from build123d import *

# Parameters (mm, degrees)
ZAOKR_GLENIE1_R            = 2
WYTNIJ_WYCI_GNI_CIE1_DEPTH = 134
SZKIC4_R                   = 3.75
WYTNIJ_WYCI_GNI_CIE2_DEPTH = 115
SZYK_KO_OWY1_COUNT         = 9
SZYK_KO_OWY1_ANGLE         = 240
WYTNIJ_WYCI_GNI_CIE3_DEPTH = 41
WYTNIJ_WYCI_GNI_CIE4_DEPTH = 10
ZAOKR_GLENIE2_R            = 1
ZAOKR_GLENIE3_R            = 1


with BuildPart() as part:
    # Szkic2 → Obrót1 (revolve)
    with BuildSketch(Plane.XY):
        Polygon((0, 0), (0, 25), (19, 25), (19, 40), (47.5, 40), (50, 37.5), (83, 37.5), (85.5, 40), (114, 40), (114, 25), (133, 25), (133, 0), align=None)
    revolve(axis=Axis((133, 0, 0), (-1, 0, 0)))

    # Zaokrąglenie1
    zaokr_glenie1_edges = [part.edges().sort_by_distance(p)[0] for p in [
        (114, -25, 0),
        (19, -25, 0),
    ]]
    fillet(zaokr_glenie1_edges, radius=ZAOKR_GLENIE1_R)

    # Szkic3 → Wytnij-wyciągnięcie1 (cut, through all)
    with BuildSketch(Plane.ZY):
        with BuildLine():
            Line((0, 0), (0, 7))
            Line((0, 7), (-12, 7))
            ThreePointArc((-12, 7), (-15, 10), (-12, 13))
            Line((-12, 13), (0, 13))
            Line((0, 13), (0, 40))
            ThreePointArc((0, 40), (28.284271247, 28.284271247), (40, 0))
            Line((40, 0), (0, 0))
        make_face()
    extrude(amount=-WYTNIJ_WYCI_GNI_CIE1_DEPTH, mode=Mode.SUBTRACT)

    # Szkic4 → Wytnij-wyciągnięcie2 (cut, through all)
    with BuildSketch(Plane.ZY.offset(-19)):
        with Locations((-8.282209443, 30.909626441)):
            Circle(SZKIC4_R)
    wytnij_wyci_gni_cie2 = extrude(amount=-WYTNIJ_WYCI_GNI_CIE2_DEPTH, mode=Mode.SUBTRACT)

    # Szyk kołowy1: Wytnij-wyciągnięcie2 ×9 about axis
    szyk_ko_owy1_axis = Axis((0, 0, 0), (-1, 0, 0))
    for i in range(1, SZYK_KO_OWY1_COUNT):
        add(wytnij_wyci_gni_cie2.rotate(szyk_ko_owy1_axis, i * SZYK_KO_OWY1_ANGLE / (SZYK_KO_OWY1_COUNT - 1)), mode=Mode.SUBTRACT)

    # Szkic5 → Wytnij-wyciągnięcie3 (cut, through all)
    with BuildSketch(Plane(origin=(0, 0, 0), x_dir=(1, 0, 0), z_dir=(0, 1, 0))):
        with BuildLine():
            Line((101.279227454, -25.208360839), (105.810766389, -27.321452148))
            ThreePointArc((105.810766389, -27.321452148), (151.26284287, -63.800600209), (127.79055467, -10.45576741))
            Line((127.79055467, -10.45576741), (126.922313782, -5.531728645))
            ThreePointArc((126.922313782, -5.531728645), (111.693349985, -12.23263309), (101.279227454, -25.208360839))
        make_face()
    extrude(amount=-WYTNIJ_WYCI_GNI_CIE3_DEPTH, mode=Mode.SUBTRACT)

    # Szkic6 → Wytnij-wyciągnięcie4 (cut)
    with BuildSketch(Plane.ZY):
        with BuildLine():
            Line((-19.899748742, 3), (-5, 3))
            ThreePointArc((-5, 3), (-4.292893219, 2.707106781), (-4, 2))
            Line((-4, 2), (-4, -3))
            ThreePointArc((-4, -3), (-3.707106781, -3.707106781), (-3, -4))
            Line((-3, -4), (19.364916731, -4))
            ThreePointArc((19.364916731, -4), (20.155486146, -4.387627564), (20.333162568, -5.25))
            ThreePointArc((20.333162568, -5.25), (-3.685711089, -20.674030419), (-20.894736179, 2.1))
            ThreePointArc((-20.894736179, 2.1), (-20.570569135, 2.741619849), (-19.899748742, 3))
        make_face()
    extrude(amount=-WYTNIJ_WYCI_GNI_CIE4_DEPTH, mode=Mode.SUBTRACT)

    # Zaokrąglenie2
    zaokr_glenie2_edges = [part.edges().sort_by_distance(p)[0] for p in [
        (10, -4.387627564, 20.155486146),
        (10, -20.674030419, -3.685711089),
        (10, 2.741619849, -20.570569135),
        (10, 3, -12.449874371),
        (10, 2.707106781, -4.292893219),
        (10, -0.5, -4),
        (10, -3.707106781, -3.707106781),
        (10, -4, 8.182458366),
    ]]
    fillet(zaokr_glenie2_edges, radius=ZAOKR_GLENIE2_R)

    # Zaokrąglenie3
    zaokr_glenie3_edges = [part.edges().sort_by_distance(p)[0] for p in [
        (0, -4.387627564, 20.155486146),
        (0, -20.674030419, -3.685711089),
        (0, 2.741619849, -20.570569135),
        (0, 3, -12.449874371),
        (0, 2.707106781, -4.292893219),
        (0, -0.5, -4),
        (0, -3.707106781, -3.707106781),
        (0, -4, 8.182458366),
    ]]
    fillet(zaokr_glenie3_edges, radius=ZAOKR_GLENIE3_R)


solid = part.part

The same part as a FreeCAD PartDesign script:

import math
import FreeCAD as App
import Part
import Sketcher
from FreeCAD import Vector
Q = App.Units.Quantity


def edges_at(feature, points):
    """Names of the edges that pass closest to the given points."""
    edges = feature.Shape.Edges
    near = lambda p: min(range(len(edges)), key=lambda i: edges[i].distToShape(Part.Vertex(*p))[0])
    return sorted({f"Edge{near(p) + 1}" for p in points})


def add_polygon(sketch, points):
    """Adds a closed chain of lines whose ends are joined by coincident constraints."""
    first, n = sketch.GeometryCount, len(points)
    for a, b in zip(points, points[1:] + points[:1]):
        sketch.addGeometry(Part.LineSegment(App.Vector(*a, 0), App.Vector(*b, 0)), False)
    for i in range(n):
        sketch.addConstraint(Sketcher.Constraint("Coincident", first + i, 2, first + (i + 1) % n, 1))

doc = App.newDocument("Part")
body = doc.addObject("PartDesign::Body", "Body")

# Sketch on XY plane
sketch1 = body.newObject("Sketcher::SketchObject", "Sketch")
sketch1.AttachmentSupport = (doc.getObject("XY_Plane"), [""])
sketch1.MapMode = "FlatFace"
add_polygon(sketch1, [(0, 25), (0, 0), (133, 0), (133, 25), (114, 25), (114, 40), (85.5, 40), (83, 37.5), (50, 37.5), (47.5, 40), (19, 40), (19, 25)])  # lines 0-11
sketch1.addConstraint(Sketcher.Constraint("Vertical", 0))
sketch1.addConstraint(Sketcher.Constraint("Horizontal", 1))
sketch1.addConstraint(Sketcher.Constraint("Vertical", 2))
sketch1.addConstraint(Sketcher.Constraint("Horizontal", 3))
sketch1.addConstraint(Sketcher.Constraint("Vertical", 4))
sketch1.addConstraint(Sketcher.Constraint("Horizontal", 5))
sketch1.addConstraint(Sketcher.Constraint("Horizontal", 7))
sketch1.addConstraint(Sketcher.Constraint("Horizontal", 9))
sketch1.addConstraint(Sketcher.Constraint("Vertical", 10))
sketch1.addConstraint(Sketcher.Constraint("Horizontal", 11))
sketch1.addConstraint(Sketcher.Constraint("Coincident", 0, 2, -1, 1))
sketch1.addConstraint(Sketcher.Constraint("Perpendicular", 6, 8))
sketch1.addConstraint(Sketcher.Constraint("Horizontal", 5, 2, 8, 2))
sketch1.addConstraint(Sketcher.Constraint("Horizontal", 3, 2, 10, 2))
sketch1.addConstraint(Sketcher.Constraint("Equal", 5, 9))
sketch1.addConstraint(Sketcher.Constraint("Equal", 3, 11))
sketch1.addConstraint(Sketcher.Constraint("Equal", 6, 8))
sketch1.addConstraint(Sketcher.Constraint("DistanceX", 1, 1, 1, 2, 133.0))
sketch1.addConstraint(Sketcher.Constraint("DistanceX", 3, 2, 3, 1, 19.0))
sketch1.addConstraint(Sketcher.Constraint("DistanceX", 7, 2, 7, 1, 33.0))
sketch1.addConstraint(Sketcher.Constraint("DistanceY", 0, 2, 0, 1, 25.0))
sketch1.addConstraint(Sketcher.Constraint("DistanceY", 4, 1, 4, 2, 15.0))
sketch1.addConstraint(Sketcher.Constraint("DistanceX", 5, 2, 5, 1, 28.5))
revolution = body.newObject("PartDesign::Revolution", "Revolution")
revolution.Profile = sketch1
revolution.ReferenceAxis = (sketch1, ["H_Axis"])
revolution.Angle = 360
doc.recompute()

fillet = body.newObject("PartDesign::Fillet", "Fillet")
fillet.Base = (revolution, edges_at(revolution, [(114, -25, 0), (19, -25, 0)]))
fillet.Radius = 2

# Sketch on YZ plane
sketch2 = body.newObject("Sketcher::SketchObject", "Sketch001")
sketch2.AttachmentSupport = (doc.getObject("YZ_Plane"), [""])
sketch2.MapMode = "FlatFace"
sketch2.addGeometry(Part.LineSegment(Vector(7, 0, 0), Vector(0, 0, 0)), False)
sketch2.addGeometry(Part.LineSegment(Vector(0, 0, 0), Vector(0, 40, 0)), False)
sketch2.addGeometry(Part.ArcOfCircle(Part.Circle(Vector(0, 0, 0), Vector(0, 0, 1), 40), math.radians(0), math.radians(90)), False)
sketch2.addGeometry(Part.LineSegment(Vector(40, 0, 0), Vector(13, 0, 0)), False)
sketch2.addGeometry(Part.LineSegment(Vector(13, 0, 0), Vector(13, -12, 0)), False)
sketch2.addGeometry(Part.ArcOfCircle(Part.Circle(Vector(10, -12, 0), Vector(0, 0, 1), 3), math.radians(180), math.radians(360)), False)
sketch2.addGeometry(Part.LineSegment(Vector(7, -12, 0), Vector(7, 0, 0)), False)
sketch2.addConstraint(Sketcher.Constraint("Coincident", 0, 2, 1, 1))
sketch2.addConstraint(Sketcher.Constraint("Coincident", 1, 2, 2, 2))
sketch2.addConstraint(Sketcher.Constraint("Coincident", 2, 1, 3, 1))
sketch2.addConstraint(Sketcher.Constraint("Coincident", 3, 2, 4, 1))
sketch2.addConstraint(Sketcher.Constraint("Tangent", 4, 2, 5, 2))
sketch2.addConstraint(Sketcher.Constraint("Tangent", 5, 1, 6, 1))
sketch2.addConstraint(Sketcher.Constraint("Coincident", 6, 2, 0, 1))
sketch2.addConstraint(Sketcher.Constraint("Horizontal", 0))
sketch2.addConstraint(Sketcher.Constraint("Vertical", 1))
sketch2.addConstraint(Sketcher.Constraint("Horizontal", 3))
sketch2.addConstraint(Sketcher.Constraint("Vertical", 4))
sketch2.addConstraint(Sketcher.Constraint("Vertical", 6))
sketch2.addConstraint(Sketcher.Constraint("Coincident", 2, 3, -1, 1))
sketch2.addConstraint(Sketcher.Constraint("Coincident", 0, 2, -1, 1))
sketch2.addConstraint(Sketcher.Constraint("PointOnObject", 2, 1, -1))
sketch2.addConstraint(Sketcher.Constraint("Radius", 2, 40.0))
sketch2.addConstraint(Sketcher.Constraint("Radius", 5, 3.0))
sketch2.addConstraint(Sketcher.Constraint("DistanceX", 0, 2, 0, 1, 7.0))
sketch2.addConstraint(Sketcher.Constraint("DistanceY", 4, 2, 4, 1, 12.0))
pocket1 = body.newObject("PartDesign::Pocket", "Pocket")
pocket1.Profile = sketch2
pocket1.Type = "ThroughAll"
pocket1.Reversed = True

# Sketch on YZ plane
sketch3 = body.newObject("Sketcher::SketchObject", "Sketch002")
sketch3.AttachmentSupport = (doc.getObject("YZ_Plane"), [""])
sketch3.MapMode = "FlatFace"
sketch3.AttachmentOffset = App.Placement(Vector(0, 0, 19), App.Rotation())
sketch3.addGeometry(Part.Circle(Vector(30.909626, -8.282209, 0), Vector(0, 0, 1), 3.75), False)
sketch3.addConstraint(Sketcher.Constraint("Diameter", 0, 7.5))
sketch3.addConstraint(Sketcher.Constraint("DistanceY", 0, 3, -1, 1, 8.282209))
sketch3.addConstraint(Sketcher.Constraint("DistanceX", -1, 1, 0, 3, 30.909626))
pocket2 = body.newObject("PartDesign::Pocket", "Pocket001")
pocket2.Profile = sketch3
pocket2.Type = "ThroughAll"
pocket2.Reversed = True
doc.recompute()

polarpattern = body.newObject("PartDesign::PolarPattern", "PolarPattern")
polarpattern.Originals = [pocket2]
polarpattern.Axis = (doc.getObject("X_Axis"), [""])
polarpattern.Angle = 240
polarpattern.Occurrences = 9
polarpattern.Reversed = True
body.Tip = polarpattern

# Sketch on XZ plane
sketch4 = body.newObject("Sketcher::SketchObject", "Sketch003")
sketch4.AttachmentSupport = (doc.getObject("XZ_Plane"), [""])
sketch4.MapMode = "FlatFace"
sketch4.addGeometry(Part.LineSegment(Vector(101.279227, 25.208361, 0), Vector(105.810766, 27.321452, 0)), False)
sketch4.addGeometry(Part.ArcOfCircle(Part.Circle(Vector(133, 40, 0), Vector(0, 0, 1), 30), math.radians(-100), math.radians(205)), False)
sketch4.addGeometry(Part.LineSegment(Vector(127.790555, 10.455767, 0), Vector(126.922314, 5.531729, 0)), False)
sketch4.addGeometry(Part.ArcOfCircle(Part.Circle(Vector(133, 40, 0), Vector(0, 0, 1), 35), math.radians(-155), math.radians(-100)), False)
sketch4.addConstraint(Sketcher.Constraint("Coincident", 0, 2, 1, 2))
sketch4.addConstraint(Sketcher.Constraint("Coincident", 1, 1, 2, 1))
sketch4.addConstraint(Sketcher.Constraint("Coincident", 2, 2, 3, 2))
sketch4.addConstraint(Sketcher.Constraint("Coincident", 3, 1, 0, 1))
sketch4.addConstraint(Sketcher.Constraint("Coincident", 3, 3, 1, 3))
sketch4.addConstraint(Sketcher.Constraint("Radius", 1, 30.0))
sketch4.addConstraint(Sketcher.Constraint("Radius", 3, 35.0))
sketch4.addConstraint(Sketcher.Constraint("Angle", 0, Q("25 deg")))
sketch4.addConstraint(Sketcher.Constraint("Angle", 2, Q("-100 deg")))
sketch4.addConstraint(Sketcher.Constraint("DistanceX", -1, 1, 1, 3, 133.0))
sketch4.addConstraint(Sketcher.Constraint("DistanceY", -1, 1, 1, 3, 40.0))
sketch4.addConstraint(Sketcher.Constraint("DistanceY", -1, 1, 2, 2, 5.531729))
sketch4.addConstraint(Sketcher.Constraint("DistanceY", -1, 1, 3, 1, 25.208361))
pocket3 = body.newObject("PartDesign::Pocket", "Pocket002")
pocket3.Profile = sketch4
pocket3.Type = "ThroughAll"
pocket3.Reversed = True

# Sketch on YZ plane
sketch5 = body.newObject("Sketcher::SketchObject", "Sketch004")
sketch5.AttachmentSupport = (doc.getObject("YZ_Plane"), [""])
sketch5.MapMode = "FlatFace"
sketch5.addGeometry(Part.LineSegment(Vector(3, -5, 0), Vector(3, -19.899749, 0)), False)
sketch5.addGeometry(Part.ArcOfCircle(Part.Circle(Vector(2, -19.899749, 0), Vector(0, 0, 1), 1), math.radians(-84.26083), math.radians(0)), False)
sketch5.addGeometry(Part.ArcOfCircle(Part.Circle(Vector(0, 0, 0), Vector(0, 0, 1), 21), math.radians(104.477512), math.radians(275.73917)), False)
sketch5.addGeometry(Part.ArcOfCircle(Part.Circle(Vector(-5, 19.364917, 0), Vector(0, 0, 1), 1), math.radians(0), math.radians(104.477512)), False)
sketch5.addGeometry(Part.LineSegment(Vector(-4, 19.364917, 0), Vector(-4, -3, 0)), False)
sketch5.addGeometry(Part.ArcOfCircle(Part.Circle(Vector(-3, -3, 0), Vector(0, 0, 1), 1), math.radians(-180), math.radians(-90)), False)
sketch5.addGeometry(Part.LineSegment(Vector(-3, -4, 0), Vector(2, -4, 0)), False)
sketch5.addGeometry(Part.ArcOfCircle(Part.Circle(Vector(2, -5, 0), Vector(0, 0, 1), 1), math.radians(0), math.radians(90)), False)
sketch5.addConstraint(Sketcher.Constraint("Tangent", 0, 2, 1, 2))
sketch5.addConstraint(Sketcher.Constraint("Tangent", 1, 1, 2, 2))
sketch5.addConstraint(Sketcher.Constraint("Tangent", 2, 1, 3, 2))
sketch5.addConstraint(Sketcher.Constraint("Tangent", 3, 1, 4, 1))
sketch5.addConstraint(Sketcher.Constraint("Tangent", 4, 2, 5, 1))
sketch5.addConstraint(Sketcher.Constraint("Tangent", 5, 2, 6, 1))
sketch5.addConstraint(Sketcher.Constraint("Tangent", 6, 2, 7, 2))
sketch5.addConstraint(Sketcher.Constraint("Tangent", 7, 1, 0, 1))
sketch5.addConstraint(Sketcher.Constraint("Vertical", 0))
sketch5.addConstraint(Sketcher.Constraint("Vertical", 4))
sketch5.addConstraint(Sketcher.Constraint("Horizontal", 6))
sketch5.addConstraint(Sketcher.Constraint("Coincident", 2, 3, -1, 1))
sketch5.addConstraint(Sketcher.Constraint("Equal", 1, 3))
sketch5.addConstraint(Sketcher.Constraint("Equal", 3, 5))
sketch5.addConstraint(Sketcher.Constraint("Equal", 5, 7))
sketch5.addConstraint(Sketcher.Constraint("Radius", 1, 1.0))
sketch5.addConstraint(Sketcher.Constraint("Radius", 2, 21.0))
sketch5.addConstraint(Sketcher.Constraint("DistanceX", 6, 1, 6, 2, 5.0))
sketch5.addConstraint(Sketcher.Constraint("DistanceX", -1, 1, 1, 3, 2.0))
sketch5.addConstraint(Sketcher.Constraint("DistanceY", 5, 3, -1, 1, 3.0))
pocket4 = body.newObject("PartDesign::Pocket", "Pocket003")
pocket4.Profile = sketch5
pocket4.Length = 10
pocket4.Reversed = True
doc.recompute()

fillet2 = body.newObject("PartDesign::Fillet", "Fillet001")
fillet2.Base = (pocket4, edges_at(pocket4, [
    (10, -4.388, 20.155),
    (10, -20.674, -3.686),
    (10, 2.742, -20.571),
    (10, 3, -12.45),
    (10, 2.707, -4.293),
    (10, -0.5, -4),
    (10, -3.707, -3.707),
    (10, -4, 8.182),
]))
fillet2.Radius = 1
doc.recompute()

fillet3 = body.newObject("PartDesign::Fillet", "Fillet002")
fillet3.Base = (fillet2, edges_at(fillet2, [
    (0, -4.388, 20.155),
    (0, -20.674, -3.686),
    (0, 2.742, -20.571),
    (0, 3, -12.45),
    (0, 2.707, -4.293),
    (0, -0.5, -4),
    (0, -3.707, -3.707),
    (0, -4, 8.182),
]))
fillet3.Radius = 1

doc.recompute()
